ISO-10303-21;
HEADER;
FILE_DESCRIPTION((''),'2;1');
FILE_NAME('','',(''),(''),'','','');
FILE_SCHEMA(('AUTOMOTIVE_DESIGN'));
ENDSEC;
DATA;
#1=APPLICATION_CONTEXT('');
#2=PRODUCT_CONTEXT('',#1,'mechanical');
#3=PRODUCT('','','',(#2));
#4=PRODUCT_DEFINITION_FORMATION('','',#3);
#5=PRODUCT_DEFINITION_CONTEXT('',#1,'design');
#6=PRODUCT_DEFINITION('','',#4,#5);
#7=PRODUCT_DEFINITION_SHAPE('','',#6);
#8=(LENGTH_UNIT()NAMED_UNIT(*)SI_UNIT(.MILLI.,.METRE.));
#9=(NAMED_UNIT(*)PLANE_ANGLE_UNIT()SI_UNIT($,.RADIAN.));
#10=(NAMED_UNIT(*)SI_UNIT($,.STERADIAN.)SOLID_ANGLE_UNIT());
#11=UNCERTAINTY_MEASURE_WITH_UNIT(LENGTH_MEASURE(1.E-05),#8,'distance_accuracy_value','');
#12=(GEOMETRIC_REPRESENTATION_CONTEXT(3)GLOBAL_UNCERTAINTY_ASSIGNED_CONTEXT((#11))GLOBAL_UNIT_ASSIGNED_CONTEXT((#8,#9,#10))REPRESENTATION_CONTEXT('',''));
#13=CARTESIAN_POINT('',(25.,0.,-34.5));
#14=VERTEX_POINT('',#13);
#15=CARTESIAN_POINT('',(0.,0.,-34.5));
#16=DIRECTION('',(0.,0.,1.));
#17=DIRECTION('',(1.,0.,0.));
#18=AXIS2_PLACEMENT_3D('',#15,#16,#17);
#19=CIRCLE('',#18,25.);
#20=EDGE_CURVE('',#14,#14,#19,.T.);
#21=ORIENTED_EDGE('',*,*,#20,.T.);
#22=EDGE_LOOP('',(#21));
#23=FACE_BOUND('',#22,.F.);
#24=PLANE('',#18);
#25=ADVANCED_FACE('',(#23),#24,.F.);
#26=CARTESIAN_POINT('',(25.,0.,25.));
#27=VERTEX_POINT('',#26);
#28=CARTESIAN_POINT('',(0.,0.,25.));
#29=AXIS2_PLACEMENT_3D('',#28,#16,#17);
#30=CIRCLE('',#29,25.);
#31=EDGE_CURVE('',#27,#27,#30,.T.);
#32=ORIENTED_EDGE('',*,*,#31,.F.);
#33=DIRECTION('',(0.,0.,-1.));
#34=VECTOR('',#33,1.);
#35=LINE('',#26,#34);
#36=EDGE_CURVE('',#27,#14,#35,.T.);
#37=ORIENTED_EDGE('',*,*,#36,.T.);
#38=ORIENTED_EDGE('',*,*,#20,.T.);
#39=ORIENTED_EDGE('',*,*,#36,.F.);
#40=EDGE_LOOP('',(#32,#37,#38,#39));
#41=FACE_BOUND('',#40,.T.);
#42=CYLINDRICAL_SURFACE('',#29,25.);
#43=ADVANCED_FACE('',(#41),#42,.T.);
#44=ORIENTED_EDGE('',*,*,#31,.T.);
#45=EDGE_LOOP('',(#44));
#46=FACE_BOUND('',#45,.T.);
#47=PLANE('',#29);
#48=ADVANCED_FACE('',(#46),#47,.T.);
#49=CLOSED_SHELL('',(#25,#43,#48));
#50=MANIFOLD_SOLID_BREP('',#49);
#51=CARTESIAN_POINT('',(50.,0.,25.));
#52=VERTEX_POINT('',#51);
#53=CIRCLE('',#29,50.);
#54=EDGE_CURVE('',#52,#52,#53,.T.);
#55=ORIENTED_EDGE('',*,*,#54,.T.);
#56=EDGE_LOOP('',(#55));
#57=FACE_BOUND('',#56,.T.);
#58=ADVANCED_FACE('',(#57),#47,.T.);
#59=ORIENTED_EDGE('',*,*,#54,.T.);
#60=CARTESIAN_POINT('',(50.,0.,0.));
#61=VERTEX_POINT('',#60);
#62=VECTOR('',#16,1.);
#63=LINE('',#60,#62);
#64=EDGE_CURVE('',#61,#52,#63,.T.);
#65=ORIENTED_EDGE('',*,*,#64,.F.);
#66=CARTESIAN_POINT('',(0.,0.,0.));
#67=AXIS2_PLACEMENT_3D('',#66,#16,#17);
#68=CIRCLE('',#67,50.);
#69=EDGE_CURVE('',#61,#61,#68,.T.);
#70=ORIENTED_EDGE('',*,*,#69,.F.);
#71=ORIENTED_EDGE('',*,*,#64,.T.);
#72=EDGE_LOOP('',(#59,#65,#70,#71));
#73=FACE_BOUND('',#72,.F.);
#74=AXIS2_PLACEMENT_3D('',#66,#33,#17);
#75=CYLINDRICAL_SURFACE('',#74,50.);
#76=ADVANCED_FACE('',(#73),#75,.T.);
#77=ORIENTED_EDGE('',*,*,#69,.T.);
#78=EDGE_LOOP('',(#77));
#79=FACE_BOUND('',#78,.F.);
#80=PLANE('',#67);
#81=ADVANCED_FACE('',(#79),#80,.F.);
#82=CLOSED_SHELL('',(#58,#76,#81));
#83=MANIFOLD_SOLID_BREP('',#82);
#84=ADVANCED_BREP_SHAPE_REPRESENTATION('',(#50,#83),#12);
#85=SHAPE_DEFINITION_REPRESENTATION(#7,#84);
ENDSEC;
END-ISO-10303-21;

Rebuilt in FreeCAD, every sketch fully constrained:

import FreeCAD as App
import Part
import Sketcher
from FreeCAD import Vector
Q = App.Units.Quantity

doc = App.newDocument("Part")
body = doc.addObject("PartDesign::Body", "Body")

# Sketch on XY plane
sketch1 = doc.addObject("Sketcher::SketchObject", "Sketch")
body.addObject(sketch1)
sketch1.AttachmentSupport = (doc.XY_Plane, [""])
sketch1.MapMode = "FlatFace"
sketch1.addGeometry(Part.Circle(Vector(0, 0, 0), Vector(0, 0, 1), 50), False)
sketch1.addConstraint([
    Sketcher.Constraint("Coincident", 0, 3, -1, 1),
    Sketcher.Constraint("Diameter", 0, Q("100 mm")),
])
pad1 = doc.addObject("PartDesign::Pad", "Pad")
body.addObject(pad1)
pad1.Profile = sketch1
pad1.Length = 25
body2 = doc.addObject("PartDesign::Body", "Body001")

# Sketch on XY plane
sketch2 = doc.addObject("Sketcher::SketchObject", "Sketch001")
body2.addObject(sketch2)
sketch2.AttachmentSupport = (doc.getObject("XY_Plane001"), [""])
sketch2.MapMode = "FlatFace"
sketch2.AttachmentOffset = App.Placement(Vector(0, 0, 25), App.Rotation())
sketch2.addGeometry(Part.Circle(Vector(0, 0, 0), Vector(0, 0, 1), 25), False)
sketch2.addConstraint([
    Sketcher.Constraint("Coincident", 0, 3, -1, 1),
    Sketcher.Constraint("Diameter", 0, Q("50 mm")),
])
pad2 = doc.addObject("PartDesign::Pad", "Pad001")
body2.addObject(pad2)
pad2.Profile = sketch2
pad2.Length = 59.5
pad2.Reversed = True

doc.recompute()
